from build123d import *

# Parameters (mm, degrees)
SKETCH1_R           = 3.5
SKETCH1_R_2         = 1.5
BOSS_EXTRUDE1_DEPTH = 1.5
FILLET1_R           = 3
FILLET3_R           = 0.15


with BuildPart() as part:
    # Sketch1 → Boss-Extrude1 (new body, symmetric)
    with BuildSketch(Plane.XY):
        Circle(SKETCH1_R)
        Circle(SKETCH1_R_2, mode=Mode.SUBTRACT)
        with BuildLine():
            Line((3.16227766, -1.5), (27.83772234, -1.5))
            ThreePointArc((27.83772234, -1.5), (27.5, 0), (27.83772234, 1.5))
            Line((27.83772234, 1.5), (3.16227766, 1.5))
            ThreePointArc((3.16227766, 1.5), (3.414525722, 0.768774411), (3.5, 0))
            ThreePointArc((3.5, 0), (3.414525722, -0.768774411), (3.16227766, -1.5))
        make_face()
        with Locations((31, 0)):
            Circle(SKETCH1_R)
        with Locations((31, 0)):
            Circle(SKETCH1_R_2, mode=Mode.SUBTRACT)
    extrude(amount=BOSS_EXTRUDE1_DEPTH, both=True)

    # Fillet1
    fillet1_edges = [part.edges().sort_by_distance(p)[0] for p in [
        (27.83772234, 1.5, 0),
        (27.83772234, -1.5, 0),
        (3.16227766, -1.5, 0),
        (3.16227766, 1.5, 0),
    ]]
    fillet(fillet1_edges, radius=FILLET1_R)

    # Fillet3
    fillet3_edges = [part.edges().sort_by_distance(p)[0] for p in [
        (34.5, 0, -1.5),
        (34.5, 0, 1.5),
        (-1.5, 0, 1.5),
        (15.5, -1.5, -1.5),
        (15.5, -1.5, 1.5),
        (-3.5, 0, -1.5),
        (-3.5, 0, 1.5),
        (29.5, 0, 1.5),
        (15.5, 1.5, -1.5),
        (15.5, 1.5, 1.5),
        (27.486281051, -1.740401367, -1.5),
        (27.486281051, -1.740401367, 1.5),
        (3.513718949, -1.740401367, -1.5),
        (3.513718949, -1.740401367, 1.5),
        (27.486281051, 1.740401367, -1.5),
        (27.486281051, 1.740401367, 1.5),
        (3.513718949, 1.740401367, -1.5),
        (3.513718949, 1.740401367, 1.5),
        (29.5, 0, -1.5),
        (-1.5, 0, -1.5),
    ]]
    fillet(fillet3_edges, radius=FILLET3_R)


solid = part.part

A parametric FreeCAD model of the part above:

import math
import FreeCAD as App
import Part
import Sketcher

V = App.Vector
Q = App.Units.Quantity


def edges_at(feature, points):
    """Names of the edges that pass closest to the given points."""
    edges = feature.Shape.Edges
    near = lambda p: min(range(len(edges)), key=lambda i: edges[i].distToShape(Part.Vertex(*p))[0])
    return sorted({f"Edge{near(p) + 1}" for p in points})

doc = App.newDocument("Part")
body = doc.addObject("PartDesign::Body", "Body")

# Sketch on XY plane
sketch1 = doc.addObject("Sketcher::SketchObject", "Sketch")
body.addObject(sketch1)
sketch1.AttachmentSupport = (doc.XY_Plane, [""])
sketch1.MapMode = "FlatFace"
sketch1.addGeometry([
    Part.ArcOfCircle(Part.Circle(V(0, 0, 0), V(0, 0, 1), 3.5), math.radians(25), math.radians(335)),  # 0
    Part.LineSegment(V(3.2, -1.5, 0), V(27.8, -1.5, 0)),  # 1
    Part.ArcOfCircle(Part.Circle(V(31, 0, 0), V(0, 0, 1), 3.5), math.radians(-155), math.radians(155)),  # 2
    Part.LineSegment(V(27.8, 1.5, 0), V(3.2, 1.5, 0)),  # 3
    Part.Circle(V(0, 0, 0), V(0, 0, 1), 1.5),  # 4
    Part.Circle(V(31, 0, 0), V(0, 0, 1), 1.5),  # 5
], False)
sketch1.addConstraint([
    Sketcher.Constraint("Coincident", 0, 2, 1, 1),
    Sketcher.Constraint("Coincident", 1, 2, 2, 1),
    Sketcher.Constraint("Coincident", 2, 2, 3, 1),
    Sketcher.Constraint("Coincident", 3, 2, 0, 1),
    Sketcher.Constraint("Horizontal", 1),
    Sketcher.Constraint("Horizontal", 3),
    Sketcher.Constraint("Coincident", 0, 3, -1, 1),
    Sketcher.Constraint("Coincident", 4, 3, -1, 1),
    Sketcher.Constraint("Coincident", 5, 3, 2, 3),
    Sketcher.Constraint("Equal", 0, 2),
    Sketcher.Constraint("Equal", 4, 5),
    Sketcher.Constraint("Symmetric", 1, 2, 2, 2, -1),
    Sketcher.Constraint("Diameter", 4, Q("3 mm")),
    Sketcher.Constraint("Radius", 0, Q("3.5 mm")),
    Sketcher.Constraint("DistanceX", -1, 1, 2, 3, Q("31 mm")),
    Sketcher.Constraint("DistanceY", 1, 2, 2, 2, Q("3 mm")),
])
pad1 = doc.addObject("PartDesign::Pad", "Pad")
body.addObject(pad1)
pad1.Profile = sketch1
pad1.Length = 3
pad1.Midplane = True
doc.recompute()

fillet = doc.addObject("PartDesign::Fillet", "Fillet")
body.addObject(fillet)
fillet.Base = (pad1, edges_at(pad1, [
    (27.838, 1.5, 0),
    (27.838, -1.5, 0),
    (3.162, -1.5, 0),
    (3.162, 1.5, 0),
]))
fillet.Radius = 3
doc.recompute()

fillet2 = doc.addObject("PartDesign::Fillet", "Fillet001")
body.addObject(fillet2)
fillet2.Base = (fillet, edges_at(fillet, [
    (34.5, 0, -1.5),
    (34.5, 0, 1.5),
    (-1.5, 0, 1.5),
    (15.5, -1.5, -1.5),
    (15.5, -1.5, 1.5),
    (-3.5, 0, -1.5),
    (-3.5, 0, 1.5),
    (29.5, 0, 1.5),
    (15.5, 1.5, -1.5),
    (15.5, 1.5, 1.5),
    (27.486, -1.74, -1.5),
    (27.486, -1.74, 1.5),
    (3.514, -1.74, -1.5),
    (3.514, -1.74, 1.5),
    (27.486, 1.74, -1.5),
    (27.486, 1.74, 1.5),
    (3.514, 1.74, -1.5),
    (3.514, 1.74, 1.5),
    (29.5, 0, -1.5),
    (-1.5, 0, -1.5),
]))
fillet2.Radius = 0.15

doc.recompute()
